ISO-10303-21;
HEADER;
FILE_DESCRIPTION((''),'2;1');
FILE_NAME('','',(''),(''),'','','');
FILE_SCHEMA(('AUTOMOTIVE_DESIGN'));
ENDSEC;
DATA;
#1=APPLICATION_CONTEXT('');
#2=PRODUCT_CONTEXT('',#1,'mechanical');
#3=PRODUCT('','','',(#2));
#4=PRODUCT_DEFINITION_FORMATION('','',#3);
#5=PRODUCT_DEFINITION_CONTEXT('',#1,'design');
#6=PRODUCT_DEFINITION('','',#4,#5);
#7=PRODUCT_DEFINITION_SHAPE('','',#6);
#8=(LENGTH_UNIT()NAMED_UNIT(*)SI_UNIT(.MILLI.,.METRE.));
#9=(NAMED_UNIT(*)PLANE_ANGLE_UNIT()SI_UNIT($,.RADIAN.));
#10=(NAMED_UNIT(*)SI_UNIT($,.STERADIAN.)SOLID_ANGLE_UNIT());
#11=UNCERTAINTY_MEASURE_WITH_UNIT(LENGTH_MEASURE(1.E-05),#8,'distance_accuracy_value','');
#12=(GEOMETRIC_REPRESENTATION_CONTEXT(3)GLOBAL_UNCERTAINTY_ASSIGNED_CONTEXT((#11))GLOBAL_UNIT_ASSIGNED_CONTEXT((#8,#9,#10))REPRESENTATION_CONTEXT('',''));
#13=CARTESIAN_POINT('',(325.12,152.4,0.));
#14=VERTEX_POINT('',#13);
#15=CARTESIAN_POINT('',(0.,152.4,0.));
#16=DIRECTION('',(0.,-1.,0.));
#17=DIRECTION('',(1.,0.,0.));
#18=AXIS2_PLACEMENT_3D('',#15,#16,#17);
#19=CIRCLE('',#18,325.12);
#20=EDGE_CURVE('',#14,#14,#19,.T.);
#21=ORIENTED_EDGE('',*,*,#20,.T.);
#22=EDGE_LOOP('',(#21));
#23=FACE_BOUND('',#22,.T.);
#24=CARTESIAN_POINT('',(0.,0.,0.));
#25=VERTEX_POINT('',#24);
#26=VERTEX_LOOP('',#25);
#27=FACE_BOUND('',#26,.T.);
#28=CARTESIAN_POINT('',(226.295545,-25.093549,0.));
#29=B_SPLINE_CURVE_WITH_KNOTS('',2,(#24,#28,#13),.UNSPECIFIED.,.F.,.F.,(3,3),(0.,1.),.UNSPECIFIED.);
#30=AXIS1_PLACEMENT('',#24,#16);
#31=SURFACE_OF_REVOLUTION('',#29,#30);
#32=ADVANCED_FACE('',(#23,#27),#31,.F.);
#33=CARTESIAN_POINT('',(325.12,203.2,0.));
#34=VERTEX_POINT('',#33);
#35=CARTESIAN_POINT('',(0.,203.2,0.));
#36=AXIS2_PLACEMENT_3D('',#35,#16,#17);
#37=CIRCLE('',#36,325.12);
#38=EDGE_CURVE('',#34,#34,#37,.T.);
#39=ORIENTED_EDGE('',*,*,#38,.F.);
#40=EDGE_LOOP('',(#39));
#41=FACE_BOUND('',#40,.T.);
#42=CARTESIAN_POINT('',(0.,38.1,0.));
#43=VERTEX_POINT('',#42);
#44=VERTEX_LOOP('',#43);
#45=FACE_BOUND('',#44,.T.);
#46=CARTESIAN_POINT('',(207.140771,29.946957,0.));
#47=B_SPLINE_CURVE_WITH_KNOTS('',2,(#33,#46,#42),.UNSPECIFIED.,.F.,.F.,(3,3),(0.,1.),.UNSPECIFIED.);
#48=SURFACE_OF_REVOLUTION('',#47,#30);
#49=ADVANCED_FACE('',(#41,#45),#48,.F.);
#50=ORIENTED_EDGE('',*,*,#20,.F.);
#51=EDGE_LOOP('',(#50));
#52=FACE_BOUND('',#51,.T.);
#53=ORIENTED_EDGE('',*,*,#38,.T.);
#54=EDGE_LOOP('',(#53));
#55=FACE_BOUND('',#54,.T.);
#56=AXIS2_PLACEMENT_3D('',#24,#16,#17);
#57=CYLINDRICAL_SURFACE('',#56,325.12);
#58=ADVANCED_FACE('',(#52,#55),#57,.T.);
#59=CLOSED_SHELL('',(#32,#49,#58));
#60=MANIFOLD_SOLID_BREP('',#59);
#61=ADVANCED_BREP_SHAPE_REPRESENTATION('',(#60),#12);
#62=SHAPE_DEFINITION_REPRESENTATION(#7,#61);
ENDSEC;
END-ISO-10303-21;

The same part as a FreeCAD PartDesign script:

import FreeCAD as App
import Part
import Sketcher

doc = App.newDocument("Part")
body = doc.addObject("PartDesign::Body", "Body")

# Sketch on XY plane
sketch1 = body.newObject("Sketcher::SketchObject", "Sketch")
sketch1.AttachmentSupport = (doc.getObject("XY_Plane"), [""])
sketch1.MapMode = "FlatFace"
sketch1.addGeometry(Part.LineSegment(App.Vector(0, 38.1, 0), App.Vector(0, 0, 0)), False)
sketch1.addGeometry(Part.BSplineCurve([App.Vector(0, 0, 0), App.Vector(226.295545, -25.093549, 0), App.Vector(325.12, 152.4, 0)], [3, 3], [0, 1], False, 2, [1, 1, 1], False), False)
sketch1.addGeometry(Part.LineSegment(App.Vector(325.12, 152.4, 0), App.Vector(325.12, 203.2, 0)), False)
sketch1.addGeometry(Part.BSplineCurve([App.Vector(0, 38.1, 0), App.Vector(207.140771, 29.946957, 0), App.Vector(325.12, 203.2, 0)], [3, 3], [0, 1], False, 2, [1, 1, 1], False), False)
sketch1.addConstraint(Sketcher.Constraint("Block", 1))
sketch1.addConstraint(Sketcher.Constraint("Block", 3))
sketch1.addConstraint(Sketcher.Constraint("Coincident", 0, 2, 1, 1))
sketch1.addConstraint(Sketcher.Constraint("Coincident", 1, 2, 2, 1))
sketch1.addConstraint(Sketcher.Constraint("Coincident", 2, 2, 3, 2))
sketch1.addConstraint(Sketcher.Constraint("Coincident", 3, 1, 0, 1))
revolution = body.newObject("PartDesign::Revolution", "Revolution")
revolution.Profile = sketch1
revolution.ReferenceAxis = (sketch1, ["V_Axis"])
revolution.Angle = 360

doc.recompute()
